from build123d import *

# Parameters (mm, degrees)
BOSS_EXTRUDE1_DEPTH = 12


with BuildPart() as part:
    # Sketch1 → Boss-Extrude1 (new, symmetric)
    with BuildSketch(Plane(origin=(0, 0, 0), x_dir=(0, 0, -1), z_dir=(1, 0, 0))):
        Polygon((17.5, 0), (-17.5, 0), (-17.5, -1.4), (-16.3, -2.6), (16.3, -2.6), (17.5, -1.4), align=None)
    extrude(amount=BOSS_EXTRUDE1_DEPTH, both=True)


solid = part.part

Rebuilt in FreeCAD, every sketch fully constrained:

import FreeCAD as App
import Part
import Sketcher
Q = App.Units.Quantity

doc = App.newDocument("Part")
body = doc.addObject("PartDesign::Body", "Body")

# Sketch on YZ plane
sketch1 = body.newObject("Sketcher::SketchObject", "Sketch")
sketch1.AttachmentSupport = (doc.getObject("YZ_Plane"), [""])
sketch1.MapMode = "FlatFace"
sketch1.addGeometry([
    Part.LineSegment(App.Vector(0, -17.5, 0), App.Vector(0, 17.5, 0)),  # 0
    Part.LineSegment(App.Vector(0, 17.5, 0), App.Vector(-1.4, 17.5, 0)),  # 1
    Part.LineSegment(App.Vector(-1.4, 17.5, 0), App.Vector(-2.6, 16.3, 0)),  # 2
    Part.LineSegment(App.Vector(-2.6, 16.3, 0), App.Vector(-2.6, -16.3, 0)),  # 3
    Part.LineSegment(App.Vector(-2.6, -16.3, 0), App.Vector(-1.4, -17.5, 0)),  # 4
    Part.LineSegment(App.Vector(-1.4, -17.5, 0), App.Vector(0, -17.5, 0)),  # 5
], False)
sketch1.addConstraint([
    Sketcher.Constraint("Coincident", 0, 2, 1, 1),
    Sketcher.Constraint("Coincident", 1, 2, 2, 1),
    Sketcher.Constraint("Coincident", 2, 2, 3, 1),
    Sketcher.Constraint("Coincident", 3, 2, 4, 1),
    Sketcher.Constraint("Coincident", 4, 2, 5, 1),
    Sketcher.Constraint("Coincident", 5, 2, 0, 1),
    Sketcher.Constraint("Vertical", 0),
    Sketcher.Constraint("Horizontal", 1),
    Sketcher.Constraint("Vertical", 3),
    Sketcher.Constraint("Horizontal", 5),
    Sketcher.Constraint("Symmetric", 0, 2, 5, 2, -1, 1),
    Sketcher.Constraint("Perpendicular", 2, 4),
    Sketcher.Constraint("Vertical", 1, 2, 4, 2),
    Sketcher.Constraint("Equal", 2, 4),
    Sketcher.Constraint("DistanceY", 0, 1, 0, 2, Q("35 mm")),
    Sketcher.Constraint("DistanceX", 1, 2, 1, 1, Q("1.4 mm")),
    Sketcher.Constraint("DistanceY", 3, 2, 3, 1, Q("32.6 mm")),
])
pad1 = body.newObject("PartDesign::Pad", "Pad")
pad1.Profile = sketch1
pad1.Length = 24
pad1.Midplane = True

doc.recompute()
